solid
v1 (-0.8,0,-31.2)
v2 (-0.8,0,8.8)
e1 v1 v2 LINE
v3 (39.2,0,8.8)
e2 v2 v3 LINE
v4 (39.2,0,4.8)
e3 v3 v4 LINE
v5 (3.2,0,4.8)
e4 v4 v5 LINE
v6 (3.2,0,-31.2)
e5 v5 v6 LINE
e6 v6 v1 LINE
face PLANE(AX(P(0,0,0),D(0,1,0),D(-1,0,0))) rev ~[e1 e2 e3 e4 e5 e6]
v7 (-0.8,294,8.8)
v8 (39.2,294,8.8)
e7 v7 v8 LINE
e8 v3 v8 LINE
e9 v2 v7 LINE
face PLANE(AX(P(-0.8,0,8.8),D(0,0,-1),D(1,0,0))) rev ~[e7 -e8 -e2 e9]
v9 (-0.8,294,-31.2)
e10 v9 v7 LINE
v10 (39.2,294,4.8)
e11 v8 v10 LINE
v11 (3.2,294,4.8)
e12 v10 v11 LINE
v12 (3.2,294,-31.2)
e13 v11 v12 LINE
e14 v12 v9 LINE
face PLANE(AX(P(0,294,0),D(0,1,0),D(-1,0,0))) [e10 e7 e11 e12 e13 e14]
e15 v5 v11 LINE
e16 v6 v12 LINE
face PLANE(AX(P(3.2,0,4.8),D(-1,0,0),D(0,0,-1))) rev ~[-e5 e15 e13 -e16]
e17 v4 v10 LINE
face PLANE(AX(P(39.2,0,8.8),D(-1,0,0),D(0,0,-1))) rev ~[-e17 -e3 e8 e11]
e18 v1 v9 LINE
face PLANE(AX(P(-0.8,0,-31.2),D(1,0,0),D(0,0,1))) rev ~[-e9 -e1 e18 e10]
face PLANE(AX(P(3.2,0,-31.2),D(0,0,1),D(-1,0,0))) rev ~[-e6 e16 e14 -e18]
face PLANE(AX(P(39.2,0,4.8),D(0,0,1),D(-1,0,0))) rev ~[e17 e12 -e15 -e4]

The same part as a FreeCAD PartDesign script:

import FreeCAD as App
import Part
import Sketcher


def add_polygon(sketch, points):
    """Adds a closed chain of lines whose ends are joined by coincident constraints."""
    first, n = sketch.GeometryCount, len(points)
    for a, b in zip(points, points[1:] + points[:1]):
        sketch.addGeometry(Part.LineSegment(App.Vector(*a, 0), App.Vector(*b, 0)), False)
    for i in range(n):
        sketch.addConstraint(Sketcher.Constraint("Coincident", first + i, 2, first + (i + 1) % n, 1))

doc = App.newDocument("Part")
body = doc.addObject("PartDesign::Body", "Body")

sketch1 = body.newObject("Sketcher::SketchObject", "Sketch")
sketch1.AttachmentSupport = (doc.getObject("XZ_Plane"), [""])
sketch1.MapMode = "FlatFace"
add_polygon(sketch1, [(-0.8, -31.2), (-0.8, 8.8), (39.2, 8.8), (39.2, 4.8), (3.2, 4.8), (3.2, -31.2)])
sketch1.addConstraint([
    Sketcher.Constraint("Vertical", 0),
    Sketcher.Constraint("Horizontal", 1),
    Sketcher.Constraint("Vertical", 2),
    Sketcher.Constraint("Horizontal", 3),
    Sketcher.Constraint("Vertical", 4),
    Sketcher.Constraint("Horizontal", 5),
    Sketcher.Constraint("Equal", 1, 0),
    Sketcher.Constraint("Equal", 5, 2),
    Sketcher.Constraint("DistanceX", 1, 1, 1, 2, 40.0),
    Sketcher.Constraint("DistanceX", 5, 2, 5, 1, 4.0),
    Sketcher.Constraint("DistanceX", 0, 2, -1, 1, 0.8),
    Sketcher.Constraint("DistanceY", -1, 1, 0, 2, 8.8),
])
pad1 = body.newObject("PartDesign::Pad", "Pad")
pad1.Profile = sketch1
pad1.Length = 294
pad1.Reversed = True

doc.recompute()
